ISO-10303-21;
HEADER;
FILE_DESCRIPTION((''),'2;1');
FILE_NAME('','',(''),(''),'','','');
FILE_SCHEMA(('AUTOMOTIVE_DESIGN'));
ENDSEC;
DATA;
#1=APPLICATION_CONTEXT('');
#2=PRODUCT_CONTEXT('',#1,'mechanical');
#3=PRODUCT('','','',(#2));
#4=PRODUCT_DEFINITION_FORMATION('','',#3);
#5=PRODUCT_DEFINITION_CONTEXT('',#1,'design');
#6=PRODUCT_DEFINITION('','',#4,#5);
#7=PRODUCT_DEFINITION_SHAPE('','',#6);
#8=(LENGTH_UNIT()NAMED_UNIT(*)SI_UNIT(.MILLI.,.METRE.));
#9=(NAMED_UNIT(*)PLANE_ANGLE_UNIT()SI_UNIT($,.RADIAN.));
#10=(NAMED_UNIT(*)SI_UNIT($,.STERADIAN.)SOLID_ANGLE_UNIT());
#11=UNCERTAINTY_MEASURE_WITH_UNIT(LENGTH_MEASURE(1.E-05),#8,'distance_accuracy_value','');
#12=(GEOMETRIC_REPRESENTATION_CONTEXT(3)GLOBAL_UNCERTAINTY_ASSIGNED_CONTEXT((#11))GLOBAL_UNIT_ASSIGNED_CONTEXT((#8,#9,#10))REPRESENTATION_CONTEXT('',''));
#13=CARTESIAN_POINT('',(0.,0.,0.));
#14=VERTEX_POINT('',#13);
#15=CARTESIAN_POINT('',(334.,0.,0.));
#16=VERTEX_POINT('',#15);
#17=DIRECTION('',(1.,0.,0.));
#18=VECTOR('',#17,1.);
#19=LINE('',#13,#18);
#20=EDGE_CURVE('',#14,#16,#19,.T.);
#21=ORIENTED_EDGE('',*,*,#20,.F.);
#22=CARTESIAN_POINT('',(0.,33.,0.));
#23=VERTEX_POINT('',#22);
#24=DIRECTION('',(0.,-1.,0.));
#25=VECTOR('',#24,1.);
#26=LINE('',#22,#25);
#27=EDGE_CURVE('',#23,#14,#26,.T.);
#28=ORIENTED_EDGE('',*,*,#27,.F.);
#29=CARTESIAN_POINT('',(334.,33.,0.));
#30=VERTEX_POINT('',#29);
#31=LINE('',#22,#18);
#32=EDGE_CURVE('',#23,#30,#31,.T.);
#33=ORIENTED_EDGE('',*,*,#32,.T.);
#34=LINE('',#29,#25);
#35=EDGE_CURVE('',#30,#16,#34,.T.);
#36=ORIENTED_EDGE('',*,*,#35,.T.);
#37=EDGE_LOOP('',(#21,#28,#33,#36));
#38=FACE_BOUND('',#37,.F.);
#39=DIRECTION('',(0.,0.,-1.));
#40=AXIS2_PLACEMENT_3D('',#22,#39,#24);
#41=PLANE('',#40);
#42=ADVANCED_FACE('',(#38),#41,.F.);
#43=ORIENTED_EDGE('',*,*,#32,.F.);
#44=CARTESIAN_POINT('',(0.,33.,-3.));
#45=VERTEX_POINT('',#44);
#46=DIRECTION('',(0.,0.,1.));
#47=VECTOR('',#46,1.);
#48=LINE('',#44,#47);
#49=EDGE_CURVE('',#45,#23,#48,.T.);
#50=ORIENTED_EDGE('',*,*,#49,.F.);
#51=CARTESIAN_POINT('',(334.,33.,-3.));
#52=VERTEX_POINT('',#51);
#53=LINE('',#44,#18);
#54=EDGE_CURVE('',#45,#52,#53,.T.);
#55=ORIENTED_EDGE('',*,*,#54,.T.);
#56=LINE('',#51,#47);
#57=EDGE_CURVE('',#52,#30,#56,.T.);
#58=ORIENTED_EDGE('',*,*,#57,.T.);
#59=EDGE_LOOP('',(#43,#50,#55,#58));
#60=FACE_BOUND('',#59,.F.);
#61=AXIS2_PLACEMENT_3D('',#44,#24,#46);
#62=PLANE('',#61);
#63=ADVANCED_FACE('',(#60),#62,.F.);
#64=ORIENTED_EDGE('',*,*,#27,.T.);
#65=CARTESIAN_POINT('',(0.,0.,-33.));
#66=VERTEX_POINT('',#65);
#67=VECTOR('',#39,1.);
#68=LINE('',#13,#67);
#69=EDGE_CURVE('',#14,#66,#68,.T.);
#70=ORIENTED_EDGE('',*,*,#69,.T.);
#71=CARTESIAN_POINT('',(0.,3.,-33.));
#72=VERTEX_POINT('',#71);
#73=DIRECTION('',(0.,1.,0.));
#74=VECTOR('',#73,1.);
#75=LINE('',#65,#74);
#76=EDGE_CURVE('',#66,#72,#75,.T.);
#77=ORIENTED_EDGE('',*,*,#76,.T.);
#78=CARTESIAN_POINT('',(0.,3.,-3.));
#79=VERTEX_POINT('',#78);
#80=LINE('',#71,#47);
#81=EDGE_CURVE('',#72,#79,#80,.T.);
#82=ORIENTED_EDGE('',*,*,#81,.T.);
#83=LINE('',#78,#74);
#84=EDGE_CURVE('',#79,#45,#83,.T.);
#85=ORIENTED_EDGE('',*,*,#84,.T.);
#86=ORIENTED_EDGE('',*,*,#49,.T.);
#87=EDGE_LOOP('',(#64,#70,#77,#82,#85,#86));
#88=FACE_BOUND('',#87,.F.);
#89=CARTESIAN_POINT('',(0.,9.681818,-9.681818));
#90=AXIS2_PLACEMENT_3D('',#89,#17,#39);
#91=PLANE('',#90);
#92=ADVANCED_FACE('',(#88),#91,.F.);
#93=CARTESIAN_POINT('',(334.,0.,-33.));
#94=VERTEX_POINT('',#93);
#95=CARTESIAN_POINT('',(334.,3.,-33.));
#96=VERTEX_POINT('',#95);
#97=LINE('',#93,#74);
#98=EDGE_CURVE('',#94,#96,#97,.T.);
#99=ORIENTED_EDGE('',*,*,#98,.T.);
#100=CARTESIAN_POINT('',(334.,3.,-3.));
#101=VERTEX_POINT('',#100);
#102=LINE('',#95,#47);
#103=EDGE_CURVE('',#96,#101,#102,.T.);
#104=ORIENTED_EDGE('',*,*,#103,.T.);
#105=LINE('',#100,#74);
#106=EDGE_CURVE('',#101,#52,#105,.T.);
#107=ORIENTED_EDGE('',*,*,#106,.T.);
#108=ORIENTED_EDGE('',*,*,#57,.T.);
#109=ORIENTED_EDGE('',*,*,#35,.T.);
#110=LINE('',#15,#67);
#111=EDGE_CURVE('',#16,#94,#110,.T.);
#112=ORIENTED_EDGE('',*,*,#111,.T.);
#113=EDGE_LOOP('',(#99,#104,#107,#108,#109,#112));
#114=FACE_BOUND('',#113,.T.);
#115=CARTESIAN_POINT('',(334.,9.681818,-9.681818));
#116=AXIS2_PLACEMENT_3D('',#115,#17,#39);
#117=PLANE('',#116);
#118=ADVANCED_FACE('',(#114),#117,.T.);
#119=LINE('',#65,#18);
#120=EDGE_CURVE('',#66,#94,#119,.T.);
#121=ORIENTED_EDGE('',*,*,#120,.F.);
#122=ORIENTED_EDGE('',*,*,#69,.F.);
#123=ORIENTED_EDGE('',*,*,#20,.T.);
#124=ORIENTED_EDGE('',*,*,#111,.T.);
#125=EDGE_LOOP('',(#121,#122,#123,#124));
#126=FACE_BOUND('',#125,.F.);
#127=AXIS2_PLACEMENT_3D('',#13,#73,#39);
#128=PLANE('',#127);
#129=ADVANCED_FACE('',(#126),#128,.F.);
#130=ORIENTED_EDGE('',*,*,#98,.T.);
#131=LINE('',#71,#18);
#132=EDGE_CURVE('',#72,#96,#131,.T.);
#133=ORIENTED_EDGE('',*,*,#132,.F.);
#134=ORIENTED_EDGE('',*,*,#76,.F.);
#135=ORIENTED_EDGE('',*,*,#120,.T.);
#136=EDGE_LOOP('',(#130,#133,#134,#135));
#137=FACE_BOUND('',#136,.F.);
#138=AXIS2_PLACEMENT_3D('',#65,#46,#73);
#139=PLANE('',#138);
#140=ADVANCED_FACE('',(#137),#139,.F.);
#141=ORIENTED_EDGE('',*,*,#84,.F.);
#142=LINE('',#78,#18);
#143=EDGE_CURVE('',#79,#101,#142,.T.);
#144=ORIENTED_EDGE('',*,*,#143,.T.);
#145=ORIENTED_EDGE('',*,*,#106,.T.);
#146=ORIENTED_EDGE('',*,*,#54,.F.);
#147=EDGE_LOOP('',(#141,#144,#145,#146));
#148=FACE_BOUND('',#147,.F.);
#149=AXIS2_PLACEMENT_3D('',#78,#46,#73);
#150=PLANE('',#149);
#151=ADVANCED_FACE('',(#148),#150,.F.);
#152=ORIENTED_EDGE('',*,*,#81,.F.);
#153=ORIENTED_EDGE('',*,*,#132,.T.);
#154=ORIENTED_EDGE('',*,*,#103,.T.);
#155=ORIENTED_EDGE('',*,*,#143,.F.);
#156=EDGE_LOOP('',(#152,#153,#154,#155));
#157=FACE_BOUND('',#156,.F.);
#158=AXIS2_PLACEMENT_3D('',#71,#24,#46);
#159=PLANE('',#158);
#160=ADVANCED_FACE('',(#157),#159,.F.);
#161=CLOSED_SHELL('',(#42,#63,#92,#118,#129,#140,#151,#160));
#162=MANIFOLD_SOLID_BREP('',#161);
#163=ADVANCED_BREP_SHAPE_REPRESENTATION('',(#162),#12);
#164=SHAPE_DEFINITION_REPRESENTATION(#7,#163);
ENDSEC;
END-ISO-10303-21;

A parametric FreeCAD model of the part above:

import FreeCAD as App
import Part
import Sketcher


def add_polygon(sketch, points):
    """Adds a closed chain of lines whose ends are joined by coincident constraints."""
    first, n = sketch.GeometryCount, len(points)
    for a, b in zip(points, points[1:] + points[:1]):
        sketch.addGeometry(Part.LineSegment(App.Vector(*a, 0), App.Vector(*b, 0)), False)
    for i in range(n):
        sketch.addConstraint(Sketcher.Constraint("Coincident", first + i, 2, first + (i + 1) % n, 1))

doc = App.newDocument("Part")
body = doc.addObject("PartDesign::Body", "Body")

sketch1 = body.newObject("Sketcher::SketchObject", "Sketch")
sketch1.AttachmentSupport = (doc.getObject("YZ_Plane"), [""])
sketch1.MapMode = "FlatFace"
add_polygon(sketch1, [(33, 0), (0, 0), (0, -33), (3, -33), (3, -3), (33, -3)])
sketch1.addConstraint([
    Sketcher.Constraint("Horizontal", 0),
    Sketcher.Constraint("Vertical", 1),
    Sketcher.Constraint("Horizontal", 2),
    Sketcher.Constraint("Vertical", 3),
    Sketcher.Constraint("Horizontal", 4),
    Sketcher.Constraint("Vertical", 5),
    Sketcher.Constraint("Coincident", 0, 2, -1, 1),
    Sketcher.Constraint("Equal", 0, 1),
    Sketcher.Constraint("Equal", 4, 3),
    Sketcher.Constraint("DistanceX", 0, 2, 0, 1, 33.0),
    Sketcher.Constraint("DistanceX", 2, 1, 2, 2, 3.0),
])
pad1 = body.newObject("PartDesign::Pad", "Pad")
pad1.Profile = sketch1
pad1.Length = 334

doc.recompute()
